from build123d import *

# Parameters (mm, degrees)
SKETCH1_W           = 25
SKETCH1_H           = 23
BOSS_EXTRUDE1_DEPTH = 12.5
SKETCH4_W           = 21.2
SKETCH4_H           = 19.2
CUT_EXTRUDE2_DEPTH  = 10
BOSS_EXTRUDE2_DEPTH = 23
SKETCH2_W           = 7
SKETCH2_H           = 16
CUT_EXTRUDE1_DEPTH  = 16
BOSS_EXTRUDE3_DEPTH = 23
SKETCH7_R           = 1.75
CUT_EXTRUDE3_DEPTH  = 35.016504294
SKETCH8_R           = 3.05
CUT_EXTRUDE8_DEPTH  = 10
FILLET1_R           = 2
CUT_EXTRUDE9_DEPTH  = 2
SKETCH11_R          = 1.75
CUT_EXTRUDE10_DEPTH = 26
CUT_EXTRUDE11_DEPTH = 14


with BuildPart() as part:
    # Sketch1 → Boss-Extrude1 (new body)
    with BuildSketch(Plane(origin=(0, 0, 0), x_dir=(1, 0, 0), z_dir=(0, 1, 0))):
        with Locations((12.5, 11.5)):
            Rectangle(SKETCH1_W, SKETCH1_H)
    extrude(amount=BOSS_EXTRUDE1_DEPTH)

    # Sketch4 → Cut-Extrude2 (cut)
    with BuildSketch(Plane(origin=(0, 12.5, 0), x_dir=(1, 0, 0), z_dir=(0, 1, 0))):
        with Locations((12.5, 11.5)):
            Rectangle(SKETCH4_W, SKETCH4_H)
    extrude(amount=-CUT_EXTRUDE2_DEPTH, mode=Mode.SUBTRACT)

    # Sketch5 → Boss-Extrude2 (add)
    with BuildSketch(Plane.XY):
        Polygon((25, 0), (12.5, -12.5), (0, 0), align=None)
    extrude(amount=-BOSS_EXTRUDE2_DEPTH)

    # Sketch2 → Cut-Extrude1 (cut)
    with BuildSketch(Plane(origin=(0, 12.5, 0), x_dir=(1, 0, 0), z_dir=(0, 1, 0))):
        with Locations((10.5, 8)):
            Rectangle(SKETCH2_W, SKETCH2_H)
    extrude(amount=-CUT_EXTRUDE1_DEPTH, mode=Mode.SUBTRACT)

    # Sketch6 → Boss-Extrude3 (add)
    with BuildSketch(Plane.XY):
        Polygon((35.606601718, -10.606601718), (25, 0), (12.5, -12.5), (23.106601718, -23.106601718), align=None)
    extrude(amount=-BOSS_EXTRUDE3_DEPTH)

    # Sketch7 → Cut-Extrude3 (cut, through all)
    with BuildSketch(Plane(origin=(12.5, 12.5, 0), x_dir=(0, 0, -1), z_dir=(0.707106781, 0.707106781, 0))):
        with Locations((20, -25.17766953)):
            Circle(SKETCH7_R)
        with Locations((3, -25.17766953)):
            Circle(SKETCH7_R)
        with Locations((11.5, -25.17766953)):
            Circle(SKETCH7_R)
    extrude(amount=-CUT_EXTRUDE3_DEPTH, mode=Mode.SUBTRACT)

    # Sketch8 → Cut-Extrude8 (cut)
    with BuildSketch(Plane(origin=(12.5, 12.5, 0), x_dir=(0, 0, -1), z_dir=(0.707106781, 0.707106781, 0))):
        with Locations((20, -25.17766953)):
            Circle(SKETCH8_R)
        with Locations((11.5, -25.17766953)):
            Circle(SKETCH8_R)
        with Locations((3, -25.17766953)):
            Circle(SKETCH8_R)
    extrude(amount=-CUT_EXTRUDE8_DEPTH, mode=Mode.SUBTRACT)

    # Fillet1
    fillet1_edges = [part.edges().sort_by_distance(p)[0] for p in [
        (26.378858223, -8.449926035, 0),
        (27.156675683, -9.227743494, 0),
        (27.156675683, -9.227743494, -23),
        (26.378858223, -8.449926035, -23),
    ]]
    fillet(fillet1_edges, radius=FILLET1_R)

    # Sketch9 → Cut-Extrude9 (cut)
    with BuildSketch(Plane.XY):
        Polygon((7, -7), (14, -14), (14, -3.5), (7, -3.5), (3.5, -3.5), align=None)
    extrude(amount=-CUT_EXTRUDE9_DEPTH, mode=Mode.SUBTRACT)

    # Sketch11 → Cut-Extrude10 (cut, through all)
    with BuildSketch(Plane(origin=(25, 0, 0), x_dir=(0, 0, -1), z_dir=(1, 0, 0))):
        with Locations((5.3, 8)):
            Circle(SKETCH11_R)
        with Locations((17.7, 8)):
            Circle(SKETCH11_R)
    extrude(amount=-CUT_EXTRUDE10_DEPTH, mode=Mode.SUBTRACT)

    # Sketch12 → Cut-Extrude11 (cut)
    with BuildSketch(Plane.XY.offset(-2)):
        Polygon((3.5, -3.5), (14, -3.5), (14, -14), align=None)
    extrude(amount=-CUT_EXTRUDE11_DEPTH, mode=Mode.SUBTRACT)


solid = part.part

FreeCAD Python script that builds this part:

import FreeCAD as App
import Part
import Sketcher
from FreeCAD import Vector
Q = App.Units.Quantity


def edges_at(feature, points):
    """Names of the edges that pass closest to the given points."""
    edges = feature.Shape.Edges
    near = lambda p: min(range(len(edges)), key=lambda i: edges[i].distToShape(Part.Vertex(*p))[0])
    return sorted({f"Edge{near(p) + 1}" for p in points})


def add_polygon(sketch, points):
    """Adds a closed chain of lines whose ends are joined by coincident constraints."""
    first, n = sketch.GeometryCount, len(points)
    for a, b in zip(points, points[1:] + points[:1]):
        sketch.addGeometry(Part.LineSegment(App.Vector(*a, 0), App.Vector(*b, 0)), False)
    for i in range(n):
        sketch.addConstraint(Sketcher.Constraint("Coincident", first + i, 2, first + (i + 1) % n, 1))

doc = App.newDocument("Part")
body = doc.addObject("PartDesign::Body", "Body")

sketch1 = body.newObject("Sketcher::SketchObject", "Sketch")
sketch1.AttachmentSupport = (doc.getObject("XZ_Plane"), [""])
sketch1.MapMode = "FlatFace"
add_polygon(sketch1, [(0, -23), (0, 0), (25, 0), (25, -23)])
sketch1.addConstraint([
    Sketcher.Constraint("Vertical", 0),
    Sketcher.Constraint("Horizontal", 1),
    Sketcher.Constraint("Vertical", 2),
    Sketcher.Constraint("Horizontal", 3),
    Sketcher.Constraint("Coincident", 0, 2, -1, 1),
    Sketcher.Constraint("DistanceX", 1, 1, 1, 2, 25.0),
    Sketcher.Constraint("DistanceY", 0, 1, 0, 2, 23.0),
])
pad1 = body.newObject("PartDesign::Pad", "Pad")
pad1.Profile = sketch1
pad1.Length = 12.5
pad1.Reversed = True

sketch2 = body.newObject("Sketcher::SketchObject", "Sketch001")
sketch2.AttachmentSupport = (doc.getObject("XZ_Plane"), [""])
sketch2.MapMode = "FlatFace"
sketch2.AttachmentOffset = App.Placement(Vector(0, 0, -12.5), App.Rotation())
add_polygon(sketch2, [(1.9, -21.1), (1.9, -1.9), (23.1, -1.9), (23.1, -21.1)])
sketch2.addConstraint([
    Sketcher.Constraint("Vertical", 0),
    Sketcher.Constraint("Horizontal", 1),
    Sketcher.Constraint("Vertical", 2),
    Sketcher.Constraint("Horizontal", 3),
    Sketcher.Constraint("DistanceX", 1, 1, 1, 2, 21.2),
    Sketcher.Constraint("DistanceY", 0, 1, 0, 2, 19.2),
    Sketcher.Constraint("DistanceX", -1, 1, 0, 2, 1.9),
    Sketcher.Constraint("DistanceY", 0, 2, -1, 1, 1.9),
])
pocket1 = body.newObject("PartDesign::Pocket", "Pocket")
pocket1.Profile = sketch2
pocket1.Length = 10
pocket1.Reversed = True

sketch3 = body.newObject("Sketcher::SketchObject", "Sketch002")
sketch3.AttachmentSupport = (doc.getObject("XY_Plane"), [""])
sketch3.MapMode = "FlatFace"
add_polygon(sketch3, [(12.5, -12.5), (25, 0), (0, 0)])
sketch3.addConstraint([
    Sketcher.Constraint("Horizontal", 1),
    Sketcher.Constraint("Coincident", 1, 2, -1, 1),
    Sketcher.Constraint("Perpendicular", 0, 2),
    Sketcher.Constraint("Equal", 0, 2),
    Sketcher.Constraint("DistanceX", 1, 2, 1, 1, 25.0),
])
pad2 = body.newObject("PartDesign::Pad", "Pad001")
pad2.Profile = sketch3
pad2.Length = 23
pad2.Reversed = True

sketch4 = body.newObject("Sketcher::SketchObject", "Sketch003")
sketch4.AttachmentSupport = (doc.getObject("XZ_Plane"), [""])
sketch4.MapMode = "FlatFace"
sketch4.AttachmentOffset = App.Placement(Vector(0, 0, -12.5), App.Rotation())
add_polygon(sketch4, [(7, -16), (7, 0), (14, 0), (14, -16)])
sketch4.addConstraint([
    Sketcher.Constraint("Vertical", 0),
    Sketcher.Constraint("Horizontal", 1),
    Sketcher.Constraint("Vertical", 2),
    Sketcher.Constraint("Horizontal", 3),
    Sketcher.Constraint("PointOnObject", 0, 2, -1),
    Sketcher.Constraint("DistanceX", 1, 1, 1, 2, 7.0),
    Sketcher.Constraint("DistanceY", 0, 1, 0, 2, 16.0),
    Sketcher.Constraint("DistanceX", -1, 1, 0, 2, 7.0),
])
pocket2 = body.newObject("PartDesign::Pocket", "Pocket001")
pocket2.Profile = sketch4
pocket2.Length = 16
pocket2.Reversed = True

sketch5 = body.newObject("Sketcher::SketchObject", "Sketch004")
sketch5.AttachmentSupport = (doc.getObject("XY_Plane"), [""])
sketch5.MapMode = "FlatFace"
add_polygon(sketch5, [(35.606602, -10.606602), (25, 0), (12.5, -12.5), (23.106602, -23.106602)])
sketch5.addConstraint([
    Sketcher.Constraint("PointOnObject", 0, 2, -1),
    Sketcher.Constraint("Perpendicular", 0, 1),
    Sketcher.Constraint("Perpendicular", 1, 2),
    Sketcher.Constraint("Perpendicular", 2, 3),
    Sketcher.Constraint("Angle", 0, Q("135 deg")),
    Sketcher.Constraint("Distance", 0, 15.0),
    Sketcher.Constraint("DistanceX", -1, 1, 0, 2, 25.0),
    Sketcher.Constraint("DistanceX", -1, 1, 1, 2, 12.5),
])
pad3 = body.newObject("PartDesign::Pad", "Pad002")
pad3.Profile = sketch5
pad3.Length = 23
pad3.Reversed = True

sketch6 = body.newObject("Sketcher::SketchObject", "Sketch005")
sketch6.Placement = App.Placement(Vector(12.5, 12.5, 0), App.Rotation(Vector(0, 0, -1), Vector(-0.707106781, 0.707106781, 0), Vector(0.707106781, 0.707106781, 0), "ZXY"))
sketch6.addGeometry([
    Part.Circle(Vector(20, -25.17767, 0), Vector(0, 0, 1), 1.75),
    Part.Circle(Vector(3, -25.17767, 0), Vector(0, 0, 1), 1.75),
    Part.Circle(Vector(11.5, -25.17767, 0), Vector(0, 0, 1), 1.75),
], False)
sketch6.addConstraint([
    Sketcher.Constraint("Equal", 0, 1),
    Sketcher.Constraint("Equal", 1, 2),
    Sketcher.Constraint("Horizontal", 0, 3, 1, 3),
    Sketcher.Constraint("Horizontal", 1, 3, 2, 3),
    Sketcher.Constraint("Diameter", 0, 3.5),
    Sketcher.Constraint("DistanceX", -1, 1, 0, 3, 20.0),
    Sketcher.Constraint("DistanceX", -1, 1, 1, 3, 3.0),
    Sketcher.Constraint("DistanceX", -1, 1, 2, 3, 11.5),
    Sketcher.Constraint("DistanceY", 0, 3, -1, 1, 25.17767),
])
pocket3 = body.newObject("PartDesign::Pocket", "Pocket002")
pocket3.Profile = sketch6
pocket3.Type = "ThroughAll"

sketch7 = body.newObject("Sketcher::SketchObject", "Sketch006")
sketch7.Placement = App.Placement(Vector(12.5, 12.5, 0), App.Rotation(Vector(0, 0, -1), Vector(-0.707106781, 0.707106781, 0), Vector(0.707106781, 0.707106781, 0), "ZXY"))
sketch7.addGeometry([
    Part.Circle(Vector(20, -25.17767, 0), Vector(0, 0, 1), 3.05),
    Part.Circle(Vector(11.5, -25.17767, 0), Vector(0, 0, 1), 3.05),
    Part.Circle(Vector(3, -25.17767, 0), Vector(0, 0, 1), 3.05),
], False)
sketch7.addConstraint([
    Sketcher.Constraint("Equal", 0, 1),
    Sketcher.Constraint("Equal", 1, 2),
    Sketcher.Constraint("Horizontal", 0, 3, 1, 3),
    Sketcher.Constraint("Horizontal", 1, 3, 2, 3),
    Sketcher.Constraint("Diameter", 0, 6.1),
    Sketcher.Constraint("DistanceX", -1, 1, 0, 3, 20.0),
    Sketcher.Constraint("DistanceX", -1, 1, 2, 3, 3.0),
    Sketcher.Constraint("DistanceX", -1, 1, 1, 3, 11.5),
    Sketcher.Constraint("DistanceY", 0, 3, -1, 1, 25.17767),
])
pocket4 = body.newObject("PartDesign::Pocket", "Pocket003")
pocket4.Profile = sketch7
pocket4.Length = 10
doc.recompute()

fillet = body.newObject("PartDesign::Fillet", "Fillet")
fillet.Base = (pocket4, edges_at(pocket4, [
    (26.379, -8.45, 0),
    (27.157, -9.228, 0),
    (27.157, -9.228, -23),
    (26.379, -8.45, -23),
]))
fillet.Radius = 2

sketch8 = body.newObject("Sketcher::SketchObject", "Sketch007")
sketch8.AttachmentSupport = (doc.getObject("XY_Plane"), [""])
sketch8.MapMode = "FlatFace"
add_polygon(sketch8, [(14, -14), (14, -3.5), (3.5, -3.5)])
sketch8.addConstraint([
    Sketcher.Constraint("Vertical", 0),
    Sketcher.Constraint("Horizontal", 1),
    Sketcher.Constraint("Equal", 1, 0),
    Sketcher.Constraint("DistanceX", 1, 2, 1, 1, 10.5),
    Sketcher.Constraint("DistanceX", -1, 1, 0, 2, 14.0),
    Sketcher.Constraint("DistanceY", 2, 2, -1, 1, 14.0),
])
pocket5 = body.newObject("PartDesign::Pocket", "Pocket004")
pocket5.Profile = sketch8
pocket5.Length = 2

sketch9 = body.newObject("Sketcher::SketchObject", "Sketch008")
sketch9.AttachmentSupport = (doc.getObject("YZ_Plane"), [""])
sketch9.MapMode = "FlatFace"
sketch9.AttachmentOffset = App.Placement(Vector(0, 0, 25), App.Rotation())
sketch9.addGeometry([
    Part.Circle(Vector(8, -5.3, 0), Vector(0, 0, 1), 1.75),
    Part.Circle(Vector(8, -17.7, 0), Vector(0, 0, 1), 1.75),
], False)
sketch9.addConstraint([
    Sketcher.Constraint("Equal", 0, 1),
    Sketcher.Constraint("Vertical", 0, 3, 1, 3),
    Sketcher.Constraint("Diameter", 0, 3.5),
    Sketcher.Constraint("DistanceX", -1, 1, 0, 3, 8.0),
    Sketcher.Constraint("DistanceY", 0, 3, -1, 1, 5.3),
    Sketcher.Constraint("DistanceY", 1, 3, -1, 1, 17.7),
])
pocket6 = body.newObject("PartDesign::Pocket", "Pocket005")
pocket6.Profile = sketch9
pocket6.Type = "ThroughAll"

sketch10 = body.newObject("Sketcher::SketchObject", "Sketch009")
sketch10.AttachmentSupport = (doc.getObject("XY_Plane"), [""])
sketch10.MapMode = "FlatFace"
sketch10.AttachmentOffset = App.Placement(Vector(0, 0, -2), App.Rotation())
add_polygon(sketch10, [(14, -3.5), (3.5, -3.5), (14, -14)])
sketch10.addConstraint([
    Sketcher.Constraint("Horizontal", 0),
    Sketcher.Constraint("Vertical", 2),
    Sketcher.Constraint("Equal", 0, 2),
    Sketcher.Constraint("DistanceX", 0, 2, 0, 1, 10.5),
    Sketcher.Constraint("DistanceX", -1, 1, 1, 2, 14.0),
    Sketcher.Constraint("DistanceY", 1, 2, -1, 1, 14.0),
])
pocket7 = body.newObject("PartDesign::Pocket", "Pocket006")
pocket7.Profile = sketch10
pocket7.Length = 14

doc.recompute()
